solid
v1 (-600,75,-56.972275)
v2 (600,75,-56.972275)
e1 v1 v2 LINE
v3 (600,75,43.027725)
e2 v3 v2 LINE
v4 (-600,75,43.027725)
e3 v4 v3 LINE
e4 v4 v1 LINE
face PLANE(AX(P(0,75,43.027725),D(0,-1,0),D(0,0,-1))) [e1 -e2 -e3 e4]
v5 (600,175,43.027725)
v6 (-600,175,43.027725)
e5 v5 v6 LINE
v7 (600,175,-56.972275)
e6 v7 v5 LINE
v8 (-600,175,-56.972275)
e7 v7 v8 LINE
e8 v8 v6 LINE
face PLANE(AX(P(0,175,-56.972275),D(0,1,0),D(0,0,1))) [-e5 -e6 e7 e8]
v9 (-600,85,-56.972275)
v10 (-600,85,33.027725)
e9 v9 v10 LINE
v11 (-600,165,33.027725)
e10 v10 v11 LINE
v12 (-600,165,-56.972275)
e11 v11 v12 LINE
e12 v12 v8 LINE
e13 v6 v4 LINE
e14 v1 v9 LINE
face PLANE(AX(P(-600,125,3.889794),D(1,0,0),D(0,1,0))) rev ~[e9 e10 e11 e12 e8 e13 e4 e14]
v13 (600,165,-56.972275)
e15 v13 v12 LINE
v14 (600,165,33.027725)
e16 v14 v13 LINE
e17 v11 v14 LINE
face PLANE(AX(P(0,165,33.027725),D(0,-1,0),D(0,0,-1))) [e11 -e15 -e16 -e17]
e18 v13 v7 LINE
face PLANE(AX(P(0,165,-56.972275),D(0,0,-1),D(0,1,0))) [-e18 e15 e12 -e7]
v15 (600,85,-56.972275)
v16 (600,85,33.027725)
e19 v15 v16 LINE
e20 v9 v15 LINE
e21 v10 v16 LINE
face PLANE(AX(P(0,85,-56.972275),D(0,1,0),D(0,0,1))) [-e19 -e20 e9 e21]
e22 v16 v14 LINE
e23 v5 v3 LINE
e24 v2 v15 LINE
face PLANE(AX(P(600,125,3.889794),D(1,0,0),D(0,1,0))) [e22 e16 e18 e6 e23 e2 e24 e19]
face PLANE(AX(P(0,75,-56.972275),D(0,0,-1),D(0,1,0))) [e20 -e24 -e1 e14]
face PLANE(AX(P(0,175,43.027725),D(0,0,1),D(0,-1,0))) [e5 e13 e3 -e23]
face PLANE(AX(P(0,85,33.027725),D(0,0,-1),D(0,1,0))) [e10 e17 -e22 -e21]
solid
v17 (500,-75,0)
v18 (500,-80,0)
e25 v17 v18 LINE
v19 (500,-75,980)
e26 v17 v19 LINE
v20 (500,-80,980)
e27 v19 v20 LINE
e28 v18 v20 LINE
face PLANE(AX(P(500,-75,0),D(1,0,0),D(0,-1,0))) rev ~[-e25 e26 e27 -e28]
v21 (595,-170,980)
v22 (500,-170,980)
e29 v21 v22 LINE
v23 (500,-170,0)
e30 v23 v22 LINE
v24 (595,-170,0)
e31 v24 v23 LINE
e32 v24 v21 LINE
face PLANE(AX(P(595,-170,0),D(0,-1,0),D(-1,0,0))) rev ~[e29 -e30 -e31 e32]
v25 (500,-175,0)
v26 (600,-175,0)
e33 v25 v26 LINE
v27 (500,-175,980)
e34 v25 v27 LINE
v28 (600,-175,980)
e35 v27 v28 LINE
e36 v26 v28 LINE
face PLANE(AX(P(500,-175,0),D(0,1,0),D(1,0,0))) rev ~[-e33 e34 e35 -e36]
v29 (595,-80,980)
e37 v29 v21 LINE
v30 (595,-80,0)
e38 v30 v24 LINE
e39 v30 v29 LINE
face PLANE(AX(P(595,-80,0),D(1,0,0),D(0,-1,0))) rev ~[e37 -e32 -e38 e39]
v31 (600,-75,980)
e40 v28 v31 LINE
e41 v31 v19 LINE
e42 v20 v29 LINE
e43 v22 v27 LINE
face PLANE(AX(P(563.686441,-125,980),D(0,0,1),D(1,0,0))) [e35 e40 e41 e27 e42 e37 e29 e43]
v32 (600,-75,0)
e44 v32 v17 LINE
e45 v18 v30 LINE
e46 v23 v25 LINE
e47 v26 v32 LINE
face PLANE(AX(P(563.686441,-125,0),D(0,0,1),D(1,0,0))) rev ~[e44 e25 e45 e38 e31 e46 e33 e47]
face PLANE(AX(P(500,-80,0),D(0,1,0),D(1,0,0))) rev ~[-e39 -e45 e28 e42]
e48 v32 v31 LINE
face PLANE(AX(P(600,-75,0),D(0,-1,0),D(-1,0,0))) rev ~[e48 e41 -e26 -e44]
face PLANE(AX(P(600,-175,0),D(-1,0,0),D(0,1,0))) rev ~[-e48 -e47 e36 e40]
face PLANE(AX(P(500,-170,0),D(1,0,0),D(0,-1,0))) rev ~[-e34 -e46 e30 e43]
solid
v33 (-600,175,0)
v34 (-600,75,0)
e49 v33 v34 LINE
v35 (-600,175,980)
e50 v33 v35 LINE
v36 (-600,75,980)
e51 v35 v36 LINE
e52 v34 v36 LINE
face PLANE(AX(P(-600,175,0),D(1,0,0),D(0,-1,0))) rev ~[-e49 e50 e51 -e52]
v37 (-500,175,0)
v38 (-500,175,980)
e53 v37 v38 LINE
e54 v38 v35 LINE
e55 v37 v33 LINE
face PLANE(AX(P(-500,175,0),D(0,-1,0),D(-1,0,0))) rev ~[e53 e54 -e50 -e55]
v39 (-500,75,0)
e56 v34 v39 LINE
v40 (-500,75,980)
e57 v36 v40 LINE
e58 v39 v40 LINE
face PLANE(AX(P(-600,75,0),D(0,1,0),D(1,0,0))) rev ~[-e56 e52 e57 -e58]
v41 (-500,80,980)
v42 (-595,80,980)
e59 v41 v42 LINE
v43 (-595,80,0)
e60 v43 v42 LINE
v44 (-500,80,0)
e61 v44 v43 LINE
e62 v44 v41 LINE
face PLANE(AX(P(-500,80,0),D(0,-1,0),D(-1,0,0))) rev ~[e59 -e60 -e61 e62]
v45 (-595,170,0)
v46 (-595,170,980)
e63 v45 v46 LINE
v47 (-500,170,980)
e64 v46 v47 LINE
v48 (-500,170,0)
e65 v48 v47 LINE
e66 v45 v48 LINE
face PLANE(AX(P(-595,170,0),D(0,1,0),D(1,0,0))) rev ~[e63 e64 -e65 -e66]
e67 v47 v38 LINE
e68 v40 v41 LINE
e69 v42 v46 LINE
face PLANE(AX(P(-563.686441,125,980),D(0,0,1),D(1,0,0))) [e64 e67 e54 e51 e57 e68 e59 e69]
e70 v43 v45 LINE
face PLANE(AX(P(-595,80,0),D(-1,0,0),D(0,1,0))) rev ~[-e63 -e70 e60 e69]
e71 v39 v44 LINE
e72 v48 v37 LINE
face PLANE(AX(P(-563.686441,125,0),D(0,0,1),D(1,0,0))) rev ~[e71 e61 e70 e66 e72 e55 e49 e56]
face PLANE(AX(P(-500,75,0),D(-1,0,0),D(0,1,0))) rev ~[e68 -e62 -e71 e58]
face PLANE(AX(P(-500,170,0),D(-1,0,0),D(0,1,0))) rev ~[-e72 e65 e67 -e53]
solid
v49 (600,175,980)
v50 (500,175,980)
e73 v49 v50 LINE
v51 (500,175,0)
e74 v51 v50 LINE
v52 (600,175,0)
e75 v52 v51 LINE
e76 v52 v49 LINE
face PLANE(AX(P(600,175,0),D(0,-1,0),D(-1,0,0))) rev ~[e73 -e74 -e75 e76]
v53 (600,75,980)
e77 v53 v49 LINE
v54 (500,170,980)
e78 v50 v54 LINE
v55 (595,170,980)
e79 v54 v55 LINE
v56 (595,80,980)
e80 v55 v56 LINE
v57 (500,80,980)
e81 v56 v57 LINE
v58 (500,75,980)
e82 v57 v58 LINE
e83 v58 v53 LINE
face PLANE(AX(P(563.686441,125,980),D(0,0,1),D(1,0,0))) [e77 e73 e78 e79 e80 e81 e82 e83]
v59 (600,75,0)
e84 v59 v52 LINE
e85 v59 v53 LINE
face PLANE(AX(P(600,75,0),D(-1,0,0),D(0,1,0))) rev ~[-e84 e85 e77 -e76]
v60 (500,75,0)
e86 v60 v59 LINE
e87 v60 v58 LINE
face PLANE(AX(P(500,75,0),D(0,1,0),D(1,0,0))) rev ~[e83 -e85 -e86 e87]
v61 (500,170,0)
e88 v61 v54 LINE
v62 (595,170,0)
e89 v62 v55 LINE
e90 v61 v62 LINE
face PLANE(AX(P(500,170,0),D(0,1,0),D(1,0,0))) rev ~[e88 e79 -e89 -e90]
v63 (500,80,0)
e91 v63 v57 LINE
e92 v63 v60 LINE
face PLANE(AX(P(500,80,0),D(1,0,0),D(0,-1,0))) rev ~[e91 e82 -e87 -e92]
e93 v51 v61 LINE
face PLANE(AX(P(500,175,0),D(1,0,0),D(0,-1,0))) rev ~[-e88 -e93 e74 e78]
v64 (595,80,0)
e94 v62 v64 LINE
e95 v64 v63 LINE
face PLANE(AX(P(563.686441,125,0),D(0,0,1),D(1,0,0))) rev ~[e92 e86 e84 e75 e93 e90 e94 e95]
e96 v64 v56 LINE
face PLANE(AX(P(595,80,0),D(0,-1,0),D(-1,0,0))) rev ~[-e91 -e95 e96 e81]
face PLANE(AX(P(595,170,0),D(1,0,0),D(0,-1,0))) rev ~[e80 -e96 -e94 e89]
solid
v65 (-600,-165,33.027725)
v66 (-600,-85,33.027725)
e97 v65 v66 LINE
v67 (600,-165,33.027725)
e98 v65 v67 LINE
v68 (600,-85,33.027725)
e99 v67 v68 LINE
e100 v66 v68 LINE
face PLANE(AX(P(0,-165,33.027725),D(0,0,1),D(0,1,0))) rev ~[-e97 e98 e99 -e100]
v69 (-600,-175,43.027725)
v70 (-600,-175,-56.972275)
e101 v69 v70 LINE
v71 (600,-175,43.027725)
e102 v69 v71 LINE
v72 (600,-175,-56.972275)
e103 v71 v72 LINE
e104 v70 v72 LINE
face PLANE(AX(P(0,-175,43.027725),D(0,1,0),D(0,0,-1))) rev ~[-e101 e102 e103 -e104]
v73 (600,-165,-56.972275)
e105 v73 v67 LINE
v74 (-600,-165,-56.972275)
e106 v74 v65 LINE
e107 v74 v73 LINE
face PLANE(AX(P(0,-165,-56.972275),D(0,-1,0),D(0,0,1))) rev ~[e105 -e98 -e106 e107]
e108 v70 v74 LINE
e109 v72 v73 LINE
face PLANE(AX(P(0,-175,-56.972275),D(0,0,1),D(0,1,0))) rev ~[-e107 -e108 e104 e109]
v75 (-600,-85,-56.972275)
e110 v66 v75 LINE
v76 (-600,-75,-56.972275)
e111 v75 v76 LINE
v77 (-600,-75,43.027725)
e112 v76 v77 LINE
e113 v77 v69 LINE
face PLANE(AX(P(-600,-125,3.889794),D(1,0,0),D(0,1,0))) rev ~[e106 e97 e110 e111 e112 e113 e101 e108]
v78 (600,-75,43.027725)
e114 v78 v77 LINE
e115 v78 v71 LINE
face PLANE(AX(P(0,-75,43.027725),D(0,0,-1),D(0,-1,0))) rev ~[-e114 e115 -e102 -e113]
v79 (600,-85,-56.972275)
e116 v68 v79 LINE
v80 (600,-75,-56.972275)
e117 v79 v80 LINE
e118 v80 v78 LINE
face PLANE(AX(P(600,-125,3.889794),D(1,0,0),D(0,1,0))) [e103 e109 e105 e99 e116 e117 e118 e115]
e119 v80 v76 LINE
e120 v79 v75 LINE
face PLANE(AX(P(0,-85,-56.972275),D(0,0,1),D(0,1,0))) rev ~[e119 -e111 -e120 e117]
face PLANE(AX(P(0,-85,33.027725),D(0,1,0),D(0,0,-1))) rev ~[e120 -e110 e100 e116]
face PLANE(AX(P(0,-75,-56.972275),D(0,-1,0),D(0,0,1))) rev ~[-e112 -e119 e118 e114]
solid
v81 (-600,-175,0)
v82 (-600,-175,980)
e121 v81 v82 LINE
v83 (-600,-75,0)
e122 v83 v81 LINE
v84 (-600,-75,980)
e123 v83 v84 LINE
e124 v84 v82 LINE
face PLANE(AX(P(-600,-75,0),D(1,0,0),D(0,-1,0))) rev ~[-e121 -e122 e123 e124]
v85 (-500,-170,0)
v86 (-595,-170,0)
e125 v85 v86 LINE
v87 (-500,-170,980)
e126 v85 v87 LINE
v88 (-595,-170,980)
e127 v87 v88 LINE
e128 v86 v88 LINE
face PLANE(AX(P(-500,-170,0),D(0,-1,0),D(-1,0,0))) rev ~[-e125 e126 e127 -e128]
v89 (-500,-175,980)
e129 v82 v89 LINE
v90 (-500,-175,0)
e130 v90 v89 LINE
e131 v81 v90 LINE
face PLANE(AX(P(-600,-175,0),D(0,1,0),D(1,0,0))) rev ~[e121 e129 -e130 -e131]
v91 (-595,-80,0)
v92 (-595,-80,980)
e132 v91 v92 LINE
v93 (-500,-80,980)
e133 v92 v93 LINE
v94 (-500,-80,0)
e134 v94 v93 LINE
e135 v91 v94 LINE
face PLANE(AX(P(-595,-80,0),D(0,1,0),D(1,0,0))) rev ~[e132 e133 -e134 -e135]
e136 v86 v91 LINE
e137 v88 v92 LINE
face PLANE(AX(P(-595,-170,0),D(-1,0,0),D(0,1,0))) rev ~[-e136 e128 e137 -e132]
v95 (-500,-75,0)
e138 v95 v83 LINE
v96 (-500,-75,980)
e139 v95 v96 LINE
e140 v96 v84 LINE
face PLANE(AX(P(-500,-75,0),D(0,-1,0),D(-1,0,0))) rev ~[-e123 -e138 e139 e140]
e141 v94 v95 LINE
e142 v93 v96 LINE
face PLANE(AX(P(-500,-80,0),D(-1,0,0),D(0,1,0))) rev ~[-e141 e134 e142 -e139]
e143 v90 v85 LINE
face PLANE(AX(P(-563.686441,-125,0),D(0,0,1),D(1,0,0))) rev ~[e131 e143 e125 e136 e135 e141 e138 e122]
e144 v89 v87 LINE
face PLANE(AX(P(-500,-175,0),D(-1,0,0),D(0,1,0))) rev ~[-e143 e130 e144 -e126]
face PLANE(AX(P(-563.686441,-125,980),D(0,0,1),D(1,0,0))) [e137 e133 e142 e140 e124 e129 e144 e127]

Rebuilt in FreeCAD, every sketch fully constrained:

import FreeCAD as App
import Part
import Sketcher

V = App.Vector
Q = App.Units.Quantity

doc = App.newDocument("Part")
params = doc.addObject("Spreadsheet::Sheet", "Params")
for row, (alias, value) in enumerate([
    ("sketch1_width", "100 mm"),
    ("sketch1_width2", "10 mm"),
    ("sketch1_height", "90 mm"),
    ("pad1_length", "1200 mm"),
    ("sketch2_width", "95 mm"),
    ("sketch2_width2", "100 mm"),
    ("sketch2_height", "90 mm"),
    ("pad2_length", "980 mm"),
], start=1):
    params.set(f"A{row}", alias)
    params.set(f"B{row}", "=" + value)
    params.setAlias(f"B{row}", alias)

body = doc.addObject("PartDesign::Body", "Body")
body.AllowCompound = True

# Sketch on YZ plane
sketch1 = doc.addObject("Sketcher::SketchObject", "Sketch")
body.addObject(sketch1)
sketch1.AttachmentSupport = (doc.YZ_Plane, [""])
sketch1.MapMode = "FlatFace"
sketch1.addGeometry(Part.LineSegment(V(-75, 43, 0), V(-175, 43, 0)), False)
sketch1.addGeometry(Part.LineSegment(V(-175, 43, 0), V(-175, -57, 0)), False)
sketch1.addGeometry(Part.LineSegment(V(-175, -57, 0), V(-165, -57, 0)), False)
sketch1.addGeometry(Part.LineSegment(V(-165, -57, 0), V(-165, 33, 0)), False)
sketch1.addGeometry(Part.LineSegment(V(-165, 33, 0), V(-85, 33, 0)), False)
sketch1.addGeometry(Part.LineSegment(V(-85, 33, 0), V(-85, -57, 0)), False)
sketch1.addGeometry(Part.LineSegment(V(-85, -57, 0), V(-75, -57, 0)), False)
sketch1.addGeometry(Part.LineSegment(V(-75, -57, 0), V(-75, 43, 0)), False)
sketch1.addGeometry(Part.LineSegment(V(175, 43, 0), V(75, 43, 0)), False)
sketch1.addGeometry(Part.LineSegment(V(75, 43, 0), V(75, -57, 0)), False)
sketch1.addGeometry(Part.LineSegment(V(75, -57, 0), V(85, -57, 0)), False)
sketch1.addGeometry(Part.LineSegment(V(85, -57, 0), V(85, 33, 0)), False)
sketch1.addGeometry(Part.LineSegment(V(85, 33, 0), V(165, 33, 0)), False)
sketch1.addGeometry(Part.LineSegment(V(165, 33, 0), V(165, -57, 0)), False)
sketch1.addGeometry(Part.LineSegment(V(165, -57, 0), V(175, -57, 0)), False)
sketch1.addGeometry(Part.LineSegment(V(175, -57, 0), V(175, 43, 0)), False)
sketch1.addConstraint(Sketcher.Constraint("Coincident", 0, 2, 1, 1))
sketch1.addConstraint(Sketcher.Constraint("Coincident", 1, 2, 2, 1))
sketch1.addConstraint(Sketcher.Constraint("Coincident", 2, 2, 3, 1))
sketch1.addConstraint(Sketcher.Constraint("Coincident", 3, 2, 4, 1))
sketch1.addConstraint(Sketcher.Constraint("Coincident", 4, 2, 5, 1))
sketch1.addConstraint(Sketcher.Constraint("Coincident", 5, 2, 6, 1))
sketch1.addConstraint(Sketcher.Constraint("Coincident", 6, 2, 7, 1))
sketch1.addConstraint(Sketcher.Constraint("Coincident", 7, 2, 0, 1))
sketch1.addConstraint(Sketcher.Constraint("Coincident", 8, 2, 9, 1))
sketch1.addConstraint(Sketcher.Constraint("Coincident", 9, 2, 10, 1))
sketch1.addConstraint(Sketcher.Constraint("Coincident", 10, 2, 11, 1))
sketch1.addConstraint(Sketcher.Constraint("Coincident", 11, 2, 12, 1))
sketch1.addConstraint(Sketcher.Constraint("Coincident", 12, 2, 13, 1))
sketch1.addConstraint(Sketcher.Constraint("Coincident", 13, 2, 14, 1))
sketch1.addConstraint(Sketcher.Constraint("Coincident", 14, 2, 15, 1))
sketch1.addConstraint(Sketcher.Constraint("Coincident", 15, 2, 8, 1))
sketch1.addConstraint(Sketcher.Constraint("Horizontal", 0))
sketch1.addConstraint(Sketcher.Constraint("Vertical", 1))
sketch1.addConstraint(Sketcher.Constraint("Horizontal", 2))
sketch1.addConstraint(Sketcher.Constraint("Vertical", 3))
sketch1.addConstraint(Sketcher.Constraint("Horizontal", 4))
sketch1.addConstraint(Sketcher.Constraint("Vertical", 5))
sketch1.addConstraint(Sketcher.Constraint("Horizontal", 6))
sketch1.addConstraint(Sketcher.Constraint("Vertical", 7))
sketch1.addConstraint(Sketcher.Constraint("Horizontal", 8))
sketch1.addConstraint(Sketcher.Constraint("Vertical", 9))
sketch1.addConstraint(Sketcher.Constraint("Horizontal", 10))
sketch1.addConstraint(Sketcher.Constraint("Vertical", 11))
sketch1.addConstraint(Sketcher.Constraint("Horizontal", 12))
sketch1.addConstraint(Sketcher.Constraint("Vertical", 13))
sketch1.addConstraint(Sketcher.Constraint("Horizontal", 14))
sketch1.addConstraint(Sketcher.Constraint("Vertical", 15))
sketch1.addConstraint(Sketcher.Constraint("Symmetric", 7, 2, 8, 2, -2))
sketch1.addConstraint(Sketcher.Constraint("Symmetric", 5, 2, 10, 2, -2))
sketch1.addConstraint(Sketcher.Constraint("Symmetric", 3, 2, 12, 2, -2))
sketch1.addConstraint(Sketcher.Constraint("Symmetric", 1, 2, 14, 2, -2))
sketch1.addConstraint(Sketcher.Constraint("Horizontal", 2, 2, 5, 2))
sketch1.addConstraint(Sketcher.Constraint("Equal", 2, 6))
sketch1.addConstraint(Sketcher.Constraint("Equal", 8, 1))
sketch1.addConstraint(Sketcher.Constraint("DistanceX", 0, 2, 0, 1, Q("100 mm")))
sketch1.addConstraint(Sketcher.Constraint("DistanceX", 2, 1, 2, 2, Q("10 mm")))
sketch1.addConstraint(Sketcher.Constraint("DistanceY", 3, 1, 3, 2, Q("90 mm")))
sketch1.addConstraint(Sketcher.Constraint("DistanceX", 0, 2, -1, 1, Q("175 mm")))
sketch1.addConstraint(Sketcher.Constraint("DistanceY", -1, 1, 0, 2, Q("43.027725 mm")))
sketch1.setExpression("Constraints[39]", "Params.sketch1_width")
sketch1.setExpression("Constraints[40]", "Params.sketch1_width2")
sketch1.setExpression("Constraints[41]", "Params.sketch1_height")
pad1 = doc.addObject("PartDesign::Pad", "Pad")
body.addObject(pad1)
pad1.Profile = sketch1
pad1.setExpression("Length", "Params.pad1_length")
pad1.Midplane = True
body2 = doc.addObject("PartDesign::Body", "Body001")
body2.AllowCompound = True

# Sketch on XY plane
sketch2 = doc.addObject("Sketcher::SketchObject", "Sketch001")
body2.addObject(sketch2)
sketch2.AttachmentSupport = (doc.getObject("XY_Plane001"), [""])
sketch2.MapMode = "FlatFace"
sketch2.addGeometry(Part.LineSegment(V(-595, 80, 0), V(-595, 170, 0)), False)
sketch2.addGeometry(Part.LineSegment(V(-595, 170, 0), V(-500, 170, 0)), False)
sketch2.addGeometry(Part.LineSegment(V(-500, 170, 0), V(-500, 175, 0)), False)
sketch2.addGeometry(Part.LineSegment(V(-500, 175, 0), V(-600, 175, 0)), False)
sketch2.addGeometry(Part.LineSegment(V(-600, 175, 0), V(-600, 75, 0)), False)
sketch2.addGeometry(Part.LineSegment(V(-600, 75, 0), V(-500, 75, 0)), False)
sketch2.addGeometry(Part.LineSegment(V(-500, 75, 0), V(-500, 80, 0)), False)
sketch2.addGeometry(Part.LineSegment(V(-500, 80, 0), V(-595, 80, 0)), False)
sketch2.addGeometry(Part.LineSegment(V(-595, -170, 0), V(-595, -80, 0)), False)
sketch2.addGeometry(Part.LineSegment(V(-595, -80, 0), V(-500, -80, 0)), False)
sketch2.addGeometry(Part.LineSegment(V(-500, -80, 0), V(-500, -75, 0)), False)
sketch2.addGeometry(Part.LineSegment(V(-500, -75, 0), V(-600, -75, 0)), False)
sketch2.addGeometry(Part.LineSegment(V(-600, -75, 0), V(-600, -175, 0)), False)
sketch2.addGeometry(Part.LineSegment(V(-600, -175, 0), V(-500, -175, 0)), False)
sketch2.addGeometry(Part.LineSegment(V(-500, -175, 0), V(-500, -170, 0)), False)
sketch2.addGeometry(Part.LineSegment(V(-500, -170, 0), V(-595, -170, 0)), False)
sketch2.addGeometry(Part.LineSegment(V(600, 75, 0), V(600, 175, 0)), False)
sketch2.addGeometry(Part.LineSegment(V(600, 175, 0), V(500, 175, 0)), False)
sketch2.addGeometry(Part.LineSegment(V(500, 175, 0), V(500, 170, 0)), False)
sketch2.addGeometry(Part.LineSegment(V(500, 170, 0), V(595, 170, 0)), False)
sketch2.addGeometry(Part.LineSegment(V(595, 170, 0), V(595, 80, 0)), False)
sketch2.addGeometry(Part.LineSegment(V(595, 80, 0), V(500, 80, 0)), False)
sketch2.addGeometry(Part.LineSegment(V(500, 80, 0), V(500, 75, 0)), False)
sketch2.addGeometry(Part.LineSegment(V(500, 75, 0), V(600, 75, 0)), False)
sketch2.addGeometry(Part.LineSegment(V(600, -175, 0), V(600, -75, 0)), False)
sketch2.addGeometry(Part.LineSegment(V(600, -75, 0), V(500, -75, 0)), False)
sketch2.addGeometry(Part.LineSegment(V(500, -75, 0), V(500, -80, 0)), False)
sketch2.addGeometry(Part.LineSegment(V(500, -80, 0), V(595, -80, 0)), False)
sketch2.addGeometry(Part.LineSegment(V(595, -80, 0), V(595, -170, 0)), False)
sketch2.addGeometry(Part.LineSegment(V(595, -170, 0), V(500, -170, 0)), False)
sketch2.addGeometry(Part.LineSegment(V(500, -170, 0), V(500, -175, 0)), False)
sketch2.addGeometry(Part.LineSegment(V(500, -175, 0), V(600, -175, 0)), False)
sketch2.addConstraint(Sketcher.Constraint("Coincident", 0, 2, 1, 1))
sketch2.addConstraint(Sketcher.Constraint("Coincident", 1, 2, 2, 1))
sketch2.addConstraint(Sketcher.Constraint("Coincident", 2, 2, 3, 1))
sketch2.addConstraint(Sketcher.Constraint("Coincident", 3, 2, 4, 1))
sketch2.addConstraint(Sketcher.Constraint("Coincident", 4, 2, 5, 1))
sketch2.addConstraint(Sketcher.Constraint("Coincident", 5, 2, 6, 1))
sketch2.addConstraint(Sketcher.Constraint("Coincident", 6, 2, 7, 1))
sketch2.addConstraint(Sketcher.Constraint("Coincident", 7, 2, 0, 1))
sketch2.addConstraint(Sketcher.Constraint("Coincident", 8, 2, 9, 1))
sketch2.addConstraint(Sketcher.Constraint("Coincident", 9, 2, 10, 1))
sketch2.addConstraint(Sketcher.Constraint("Coincident", 10, 2, 11, 1))
sketch2.addConstraint(Sketcher.Constraint("Coincident", 11, 2, 12, 1))
sketch2.addConstraint(Sketcher.Constraint("Coincident", 12, 2, 13, 1))
sketch2.addConstraint(Sketcher.Constraint("Coincident", 13, 2, 14, 1))
sketch2.addConstraint(Sketcher.Constraint("Coincident", 14, 2, 15, 1))
sketch2.addConstraint(Sketcher.Constraint("Coincident", 15, 2, 8, 1))
sketch2.addConstraint(Sketcher.Constraint("Coincident", 16, 2, 17, 1))
sketch2.addConstraint(Sketcher.Constraint("Coincident", 17, 2, 18, 1))
sketch2.addConstraint(Sketcher.Constraint("Coincident", 18, 2, 19, 1))
sketch2.addConstraint(Sketcher.Constraint("Coincident", 19, 2, 20, 1))
sketch2.addConstraint(Sketcher.Constraint("Coincident", 20, 2, 21, 1))
sketch2.addConstraint(Sketcher.Constraint("Coincident", 21, 2, 22, 1))
sketch2.addConstraint(Sketcher.Constraint("Coincident", 22, 2, 23, 1))
sketch2.addConstraint(Sketcher.Constraint("Coincident", 23, 2, 16, 1))
sketch2.addConstraint(Sketcher.Constraint("Coincident", 24, 2, 25, 1))
sketch2.addConstraint(Sketcher.Constraint("Coincident", 25, 2, 26, 1))
sketch2.addConstraint(Sketcher.Constraint("Coincident", 26, 2, 27, 1))
sketch2.addConstraint(Sketcher.Constraint("Coincident", 27, 2, 28, 1))
sketch2.addConstraint(Sketcher.Constraint("Coincident", 28, 2, 29, 1))
sketch2.addConstraint(Sketcher.Constraint("Coincident", 29, 2, 30, 1))
sketch2.addConstraint(Sketcher.Constraint("Coincident", 30, 2, 31, 1))
sketch2.addConstraint(Sketcher.Constraint("Coincident", 31, 2, 24, 1))
sketch2.addConstraint(Sketcher.Constraint("Vertical", 0))
sketch2.addConstraint(Sketcher.Constraint("Horizontal", 1))
sketch2.addConstraint(Sketcher.Constraint("Vertical", 2))
sketch2.addConstraint(Sketcher.Constraint("Horizontal", 3))
sketch2.addConstraint(Sketcher.Constraint("Vertical", 4))
sketch2.addConstraint(Sketcher.Constraint("Horizontal", 5))
sketch2.addConstraint(Sketcher.Constraint("Vertical", 6))
sketch2.addConstraint(Sketcher.Constraint("Horizontal", 7))
sketch2.addConstraint(Sketcher.Constraint("Vertical", 8))
sketch2.addConstraint(Sketcher.Constraint("Horizontal", 9))
sketch2.addConstraint(Sketcher.Constraint("Vertical", 10))
sketch2.addConstraint(Sketcher.Constraint("Horizontal", 11))
sketch2.addConstraint(Sketcher.Constraint("Vertical", 12))
sketch2.addConstraint(Sketcher.Constraint("Horizontal", 13))
sketch2.addConstraint(Sketcher.Constraint("Vertical", 14))
sketch2.addConstraint(Sketcher.Constraint("Horizontal", 15))
sketch2.addConstraint(Sketcher.Constraint("Vertical", 16))
sketch2.addConstraint(Sketcher.Constraint("Horizontal", 17))
sketch2.addConstraint(Sketcher.Constraint("Vertical", 18))
sketch2.addConstraint(Sketcher.Constraint("Horizontal", 19))
sketch2.addConstraint(Sketcher.Constraint("Vertical", 20))
sketch2.addConstraint(Sketcher.Constraint("Horizontal", 21))
sketch2.addConstraint(Sketcher.Constraint("Vertical", 22))
sketch2.addConstraint(Sketcher.Constraint("Horizontal", 23))
sketch2.addConstraint(Sketcher.Constraint("Vertical", 24))
sketch2.addConstraint(Sketcher.Constraint("Horizontal", 25))
sketch2.addConstraint(Sketcher.Constraint("Vertical", 26))
sketch2.addConstraint(Sketcher.Constraint("Horizontal", 27))
sketch2.addConstraint(Sketcher.Constraint("Vertical", 28))
sketch2.addConstraint(Sketcher.Constraint("Horizontal", 29))
sketch2.addConstraint(Sketcher.Constraint("Vertical", 30))
sketch2.addConstraint(Sketcher.Constraint("Horizontal", 31))
sketch2.addConstraint(Sketcher.Constraint("Symmetric", 12, 2, 16, 2, -1, 1))
sketch2.addConstraint(Sketcher.Constraint("Symmetric", 14, 2, 18, 2, -1, 1))
sketch2.addConstraint(Sketcher.Constraint("Symmetric", 8, 2, 20, 2, -1, 1))
sketch2.addConstraint(Sketcher.Constraint("Symmetric", 10, 2, 22, 2, -1, 1))
sketch2.addConstraint(Sketcher.Constraint("Symmetric", 4, 2, 24, 2, -1, 1))
sketch2.addConstraint(Sketcher.Constraint("Symmetric", 6, 2, 26, 2, -1, 1))
sketch2.addConstraint(Sketcher.Constraint("Symmetric", 0, 2, 28, 2, -1, 1))
sketch2.addConstraint(Sketcher.Constraint("Symmetric", 2, 2, 30, 2, -1, 1))
sketch2.addConstraint(Sketcher.Constraint("Symmetric", 3, 2, 16, 2, -2))
sketch2.addConstraint(Sketcher.Constraint("Symmetric", 1, 2, 18, 2, -2))
sketch2.addConstraint(Sketcher.Constraint("Symmetric", 7, 2, 20, 2, -2))
sketch2.addConstraint(Sketcher.Constraint("Symmetric", 5, 2, 22, 2, -2))
sketch2.addConstraint(Sketcher.Constraint("Vertical", 2, 2, 5, 2))
sketch2.addConstraint(Sketcher.Constraint("Equal", 31, 4))
sketch2.addConstraint(Sketcher.Constraint("Equal", 2, 6))
sketch2.addConstraint(Sketcher.Constraint("DistanceX", 1, 1, 1, 2, Q("95 mm")))
sketch2.addConstraint(Sketcher.Constraint("DistanceX", 3, 2, 3, 1, Q("100 mm")))
sketch2.addConstraint(Sketcher.Constraint("DistanceY", 0, 1, 0, 2, Q("90 mm")))
sketch2.addConstraint(Sketcher.Constraint("DistanceX", 0, 2, -1, 1, Q("595 mm")))
sketch2.addConstraint(Sketcher.Constraint("DistanceY", -1, 1, 0, 2, Q("170 mm")))
sketch2.setExpression("Constraints[79]", "Params.sketch2_width")
sketch2.setExpression("Constraints[80]", "Params.sketch2_width2")
sketch2.setExpression("Constraints[81]", "Params.sketch2_height")
pad2 = doc.addObject("PartDesign::Pad", "Pad001")
body2.addObject(pad2)
pad2.Profile = sketch2
pad2.setExpression("Length", "Params.pad2_length")

doc.recompute()
